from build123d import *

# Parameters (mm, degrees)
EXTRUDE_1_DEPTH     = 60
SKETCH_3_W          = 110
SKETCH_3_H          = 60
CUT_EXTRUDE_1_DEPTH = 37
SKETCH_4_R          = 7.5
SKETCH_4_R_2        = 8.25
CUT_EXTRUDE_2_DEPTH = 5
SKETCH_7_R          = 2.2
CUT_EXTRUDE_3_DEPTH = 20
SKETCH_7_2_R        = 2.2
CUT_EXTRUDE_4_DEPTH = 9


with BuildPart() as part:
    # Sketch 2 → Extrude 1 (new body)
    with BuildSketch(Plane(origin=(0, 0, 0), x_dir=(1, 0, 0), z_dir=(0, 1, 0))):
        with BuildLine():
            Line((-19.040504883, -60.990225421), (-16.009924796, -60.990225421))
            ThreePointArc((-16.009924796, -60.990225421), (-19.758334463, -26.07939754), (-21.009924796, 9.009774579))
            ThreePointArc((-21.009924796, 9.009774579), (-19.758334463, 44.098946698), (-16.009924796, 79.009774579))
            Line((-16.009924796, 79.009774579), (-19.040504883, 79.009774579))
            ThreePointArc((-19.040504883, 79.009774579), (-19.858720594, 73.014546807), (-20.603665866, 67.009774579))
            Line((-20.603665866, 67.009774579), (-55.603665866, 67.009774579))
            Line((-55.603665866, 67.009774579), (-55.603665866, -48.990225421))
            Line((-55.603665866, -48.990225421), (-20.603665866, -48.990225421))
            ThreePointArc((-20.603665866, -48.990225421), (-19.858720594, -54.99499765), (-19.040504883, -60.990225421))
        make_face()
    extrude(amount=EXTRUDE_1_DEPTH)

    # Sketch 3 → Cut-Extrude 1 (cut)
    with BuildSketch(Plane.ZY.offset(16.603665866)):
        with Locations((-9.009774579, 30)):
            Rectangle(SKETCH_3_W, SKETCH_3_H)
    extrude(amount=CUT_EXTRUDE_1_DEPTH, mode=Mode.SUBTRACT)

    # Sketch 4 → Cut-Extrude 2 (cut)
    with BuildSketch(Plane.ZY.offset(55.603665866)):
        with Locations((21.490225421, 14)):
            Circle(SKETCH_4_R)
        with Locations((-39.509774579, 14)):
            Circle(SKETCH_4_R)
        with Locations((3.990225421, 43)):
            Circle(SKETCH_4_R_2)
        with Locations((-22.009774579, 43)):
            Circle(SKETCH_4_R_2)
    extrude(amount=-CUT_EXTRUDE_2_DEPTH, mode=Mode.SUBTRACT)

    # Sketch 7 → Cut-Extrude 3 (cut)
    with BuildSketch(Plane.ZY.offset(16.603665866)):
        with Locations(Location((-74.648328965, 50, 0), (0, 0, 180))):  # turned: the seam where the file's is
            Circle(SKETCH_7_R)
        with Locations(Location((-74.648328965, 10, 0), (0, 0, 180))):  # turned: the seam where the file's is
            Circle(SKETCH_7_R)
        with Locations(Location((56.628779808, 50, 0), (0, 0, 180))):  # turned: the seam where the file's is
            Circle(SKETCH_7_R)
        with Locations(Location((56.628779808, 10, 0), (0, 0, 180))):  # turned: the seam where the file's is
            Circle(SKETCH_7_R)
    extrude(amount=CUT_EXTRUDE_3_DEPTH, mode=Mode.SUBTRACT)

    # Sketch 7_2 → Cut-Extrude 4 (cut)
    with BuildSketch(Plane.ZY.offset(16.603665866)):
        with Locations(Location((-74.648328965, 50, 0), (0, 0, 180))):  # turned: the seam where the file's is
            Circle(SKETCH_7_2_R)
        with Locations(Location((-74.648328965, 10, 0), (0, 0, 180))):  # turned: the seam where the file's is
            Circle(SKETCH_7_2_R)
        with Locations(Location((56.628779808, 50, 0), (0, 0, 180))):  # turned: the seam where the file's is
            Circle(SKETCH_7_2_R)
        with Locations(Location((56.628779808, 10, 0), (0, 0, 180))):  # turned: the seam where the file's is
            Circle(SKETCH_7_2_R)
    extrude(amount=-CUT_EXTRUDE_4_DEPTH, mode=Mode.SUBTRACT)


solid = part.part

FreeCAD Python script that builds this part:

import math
import FreeCAD as App
import Part
import Sketcher

doc = App.newDocument("Part")
body = doc.addObject("PartDesign::Body", "Body")

sketch1 = body.newObject("Sketcher::SketchObject", "Sketch")
sketch1.AttachmentSupport = (doc.getObject("XZ_Plane"), [""])
sketch1.MapMode = "FlatFace"
sketch1.addGeometry(Part.LineSegment(App.Vector(-19.040505, 60.990225, 0), App.Vector(-16.009925, 60.990225, 0)), False)
sketch1.addGeometry(Part.ArcOfCircle(Part.Circle(App.Vector(471.490075, -9.009775, 0), App.Vector(0, 0, 1), 492.5), math.radians(171.828766), math.radians(180)), False)
sketch1.addGeometry(Part.ArcOfCircle(Part.Circle(App.Vector(471.490075, -9.009775, 0), App.Vector(0, 0, 1), 492.5), math.radians(180), math.radians(188.171234)), False)
sketch1.addGeometry(Part.LineSegment(App.Vector(-16.009925, -79.009775, 0), App.Vector(-19.040505, -79.009775, 0)), False)
sketch1.addGeometry(Part.ArcOfCircle(Part.Circle(App.Vector(471.490079, -9.009774, 0), App.Vector(0, 0, 1), 495.500004), math.radians(-173.277919), math.radians(-171.878574)), False)
sketch1.addGeometry(Part.LineSegment(App.Vector(-20.603666, -67.009775, 0), App.Vector(-55.603666, -67.009775, 0)), False)
sketch1.addGeometry(Part.LineSegment(App.Vector(-55.603666, -67.009775, 0), App.Vector(-55.603666, 48.990225, 0)), False)
sketch1.addGeometry(Part.LineSegment(App.Vector(-55.603666, 48.990225, 0), App.Vector(-20.603666, 48.990225, 0)), False)
sketch1.addGeometry(Part.ArcOfCircle(Part.Circle(App.Vector(471.490077, -9.009775, 0), App.Vector(0, 0, 1), 495.500002), math.radians(171.878574), math.radians(173.277919)), False)
sketch1.addConstraint(Sketcher.Constraint("Coincident", 0, 2, 1, 1))
sketch1.addConstraint(Sketcher.Constraint("Tangent", 1, 2, 2, 1))
sketch1.addConstraint(Sketcher.Constraint("Coincident", 2, 2, 3, 1))
sketch1.addConstraint(Sketcher.Constraint("Coincident", 3, 2, 4, 2))
sketch1.addConstraint(Sketcher.Constraint("Coincident", 4, 1, 5, 1))
sketch1.addConstraint(Sketcher.Constraint("Coincident", 5, 2, 6, 1))
sketch1.addConstraint(Sketcher.Constraint("Coincident", 6, 2, 7, 1))
sketch1.addConstraint(Sketcher.Constraint("Coincident", 7, 2, 8, 2))
sketch1.addConstraint(Sketcher.Constraint("Coincident", 8, 1, 0, 1))
sketch1.addConstraint(Sketcher.Constraint("Horizontal", 0))
sketch1.addConstraint(Sketcher.Constraint("Horizontal", 3))
sketch1.addConstraint(Sketcher.Constraint("Horizontal", 5))
sketch1.addConstraint(Sketcher.Constraint("Vertical", 6))
sketch1.addConstraint(Sketcher.Constraint("Horizontal", 7))
sketch1.addConstraint(Sketcher.Constraint("Coincident", 4, 3, 1, 3))
sketch1.addConstraint(Sketcher.Constraint("Coincident", 8, 3, 1, 3))
sketch1.addConstraint(Sketcher.Constraint("Equal", 1, 2))
sketch1.addConstraint(Sketcher.Constraint("Equal", 4, 8))
sketch1.addConstraint(Sketcher.Constraint("Horizontal", 8, 3, 1, 2))
sketch1.addConstraint(Sketcher.Constraint("Vertical", 0, 2, 2, 2))
sketch1.addConstraint(Sketcher.Constraint("Vertical", 4, 1, 7, 2))
sketch1.addConstraint(Sketcher.Constraint("Radius", 1, 492.5))
sketch1.addConstraint(Sketcher.Constraint("Radius", 8, 495.500002))
sketch1.addConstraint(Sketcher.Constraint("DistanceX", 5, 2, 5, 1, 35.0))
sketch1.addConstraint(Sketcher.Constraint("DistanceY", 6, 1, 6, 2, 116.0))
sketch1.addConstraint(Sketcher.Constraint("DistanceY", 1, 3, 0, 2, 70.0))
sketch1.addConstraint(Sketcher.Constraint("DistanceX", -1, 1, 4, 3, 471.490079))
sketch1.addConstraint(Sketcher.Constraint("DistanceY", 1, 3, -1, 1, 9.009775))
pad1 = body.newObject("PartDesign::Pad", "Pad")
pad1.Profile = sketch1
pad1.Length = 60
pad1.Reversed = True

sketch2 = body.newObject("Sketcher::SketchObject", "Sketch001")
sketch2.AttachmentSupport = (doc.getObject("YZ_Plane"), [""])
sketch2.MapMode = "FlatFace"
sketch2.AttachmentOffset = App.Placement(App.Vector(0, 0, -16.603666), App.Rotation())
sketch2.addGeometry(Part.LineSegment(App.Vector(60, -64.009775, 0), App.Vector(0, -64.009775, 0)), False)
sketch2.addGeometry(Part.LineSegment(App.Vector(0, -64.009775, 0), App.Vector(0, 45.990225, 0)), False)
sketch2.addGeometry(Part.LineSegment(App.Vector(0, 45.990225, 0), App.Vector(60, 45.990225, 0)), False)
sketch2.addGeometry(Part.LineSegment(App.Vector(60, 45.990225, 0), App.Vector(60, -64.009775, 0)), False)
sketch2.addConstraint(Sketcher.Constraint("Coincident", 0, 2, 1, 1))
sketch2.addConstraint(Sketcher.Constraint("Coincident", 1, 2, 2, 1))
sketch2.addConstraint(Sketcher.Constraint("Coincident", 2, 2, 3, 1))
sketch2.addConstraint(Sketcher.Constraint("Coincident", 3, 2, 0, 1))
sketch2.addConstraint(Sketcher.Constraint("Horizontal", 0))
sketch2.addConstraint(Sketcher.Constraint("Vertical", 1))
sketch2.addConstraint(Sketcher.Constraint("Horizontal", 2))
sketch2.addConstraint(Sketcher.Constraint("Vertical", 3))
sketch2.addConstraint(Sketcher.Constraint("PointOnObject", 0, 2, -2))
sketch2.addConstraint(Sketcher.Constraint("DistanceX", 0, 2, 0, 1, 60.0))
sketch2.addConstraint(Sketcher.Constraint("DistanceY", 1, 1, 1, 2, 110.0))
sketch2.addConstraint(Sketcher.Constraint("DistanceY", 0, 2, -1, 1, 64.009775))
pocket1 = body.newObject("PartDesign::Pocket", "Pocket")
pocket1.Profile = sketch2
pocket1.Length = 37

sketch3 = body.newObject("Sketcher::SketchObject", "Sketch002")
sketch3.AttachmentSupport = (doc.getObject("YZ_Plane"), [""])
sketch3.MapMode = "FlatFace"
sketch3.AttachmentOffset = App.Placement(App.Vector(0, 0, -55.603666), App.Rotation())
sketch3.addGeometry(Part.Circle(App.Vector(14, 21.490225, 0), App.Vector(0, 0, 1), 7.5), False)
sketch3.addGeometry(Part.Circle(App.Vector(14, -39.509775, 0), App.Vector(0, 0, 1), 7.5), False)
sketch3.addGeometry(Part.Circle(App.Vector(43, 3.990225, 0), App.Vector(0, 0, 1), 8.25), False)
sketch3.addGeometry(Part.Circle(App.Vector(43, -22.009775, 0), App.Vector(0, 0, 1), 8.25), False)
sketch3.addConstraint(Sketcher.Constraint("Equal", 0, 1))
sketch3.addConstraint(Sketcher.Constraint("Equal", 2, 3))
sketch3.addConstraint(Sketcher.Constraint("Vertical", 0, 3, 1, 3))
sketch3.addConstraint(Sketcher.Constraint("Vertical", 2, 3, 3, 3))
sketch3.addConstraint(Sketcher.Constraint("Diameter", 0, 15.0))
sketch3.addConstraint(Sketcher.Constraint("Diameter", 2, 16.5))
sketch3.addConstraint(Sketcher.Constraint("DistanceX", -1, 1, 0, 3, 14.0))
sketch3.addConstraint(Sketcher.Constraint("DistanceX", -1, 1, 2, 3, 43.0))
sketch3.addConstraint(Sketcher.Constraint("DistanceY", 1, 3, 0, 3, 61.0))
sketch3.addConstraint(Sketcher.Constraint("DistanceY", 3, 3, 2, 3, 26.0))
sketch3.addConstraint(Sketcher.Constraint("DistanceY", 2, 3, 0, 3, 17.5))
sketch3.addConstraint(Sketcher.Constraint("DistanceY", -1, 1, 0, 3, 21.490225))
pocket2 = body.newObject("PartDesign::Pocket", "Pocket001")
pocket2.Profile = sketch3
pocket2.Length = 5
pocket2.Reversed = True

sketch4 = body.newObject("Sketcher::SketchObject", "Sketch003")
sketch4.AttachmentSupport = (doc.getObject("YZ_Plane"), [""])
sketch4.MapMode = "FlatFace"
sketch4.AttachmentOffset = App.Placement(App.Vector(0, 0, -16.603666), App.Rotation())
sketch4.addGeometry(Part.Circle(App.Vector(50, -74.648329, 0), App.Vector(0, 0, 1), 2.2), False)
sketch4.addGeometry(Part.Circle(App.Vector(10, -74.648329, 0), App.Vector(0, 0, 1), 2.2), False)
sketch4.addGeometry(Part.Circle(App.Vector(50, 56.62878, 0), App.Vector(0, 0, 1), 2.2), False)
sketch4.addGeometry(Part.Circle(App.Vector(10, 56.62878, 0), App.Vector(0, 0, 1), 2.2), False)
sketch4.addConstraint(Sketcher.Constraint("Equal", 0, 1))
sketch4.addConstraint(Sketcher.Constraint("Equal", 1, 2))
sketch4.addConstraint(Sketcher.Constraint("Equal", 2, 3))
sketch4.addConstraint(Sketcher.Constraint("Horizontal", 0, 3, 1, 3))
sketch4.addConstraint(Sketcher.Constraint("Horizontal", 2, 3, 3, 3))
sketch4.addConstraint(Sketcher.Constraint("Vertical", 0, 3, 2, 3))
sketch4.addConstraint(Sketcher.Constraint("Vertical", 1, 3, 3, 3))
sketch4.addConstraint(Sketcher.Constraint("Diameter", 0, 4.4))
sketch4.addConstraint(Sketcher.Constraint("DistanceX", -1, 1, 0, 3, 50.0))
sketch4.addConstraint(Sketcher.Constraint("DistanceX", -1, 1, 1, 3, 10.0))
sketch4.addConstraint(Sketcher.Constraint("DistanceY", 0, 3, -1, 1, 74.648329))
sketch4.addConstraint(Sketcher.Constraint("DistanceY", -1, 1, 2, 3, 56.62878))
pocket3 = body.newObject("PartDesign::Pocket", "Pocket002")
pocket3.Profile = sketch4
pocket3.Length = 20

sketch5 = body.newObject("Sketcher::SketchObject", "Sketch004")
sketch5.AttachmentSupport = (doc.getObject("YZ_Plane"), [""])
sketch5.MapMode = "FlatFace"
sketch5.AttachmentOffset = App.Placement(App.Vector(0, 0, -16.603666), App.Rotation())
sketch5.addGeometry(Part.Circle(App.Vector(50, -74.648329, 0), App.Vector(0, 0, 1), 2.2), False)
sketch5.addGeometry(Part.Circle(App.Vector(10, -74.648329, 0), App.Vector(0, 0, 1), 2.2), False)
sketch5.addGeometry(Part.Circle(App.Vector(50, 56.62878, 0), App.Vector(0, 0, 1), 2.2), False)
sketch5.addGeometry(Part.Circle(App.Vector(10, 56.62878, 0), App.Vector(0, 0, 1), 2.2), False)
sketch5.addConstraint(Sketcher.Constraint("Equal", 0, 1))
sketch5.addConstraint(Sketcher.Constraint("Equal", 1, 2))
sketch5.addConstraint(Sketcher.Constraint("Equal", 2, 3))
sketch5.addConstraint(Sketcher.Constraint("Horizontal", 0, 3, 1, 3))
sketch5.addConstraint(Sketcher.Constraint("Horizontal", 2, 3, 3, 3))
sketch5.addConstraint(Sketcher.Constraint("Vertical", 0, 3, 2, 3))
sketch5.addConstraint(Sketcher.Constraint("Vertical", 1, 3, 3, 3))
sketch5.addConstraint(Sketcher.Constraint("Diameter", 0, 4.4))
sketch5.addConstraint(Sketcher.Constraint("DistanceX", -1, 1, 0, 3, 50.0))
sketch5.addConstraint(Sketcher.Constraint("DistanceX", -1, 1, 1, 3, 10.0))
sketch5.addConstraint(Sketcher.Constraint("DistanceY", 0, 3, -1, 1, 74.648329))
sketch5.addConstraint(Sketcher.Constraint("DistanceY", -1, 1, 2, 3, 56.62878))
pocket4 = body.newObject("PartDesign::Pocket", "Pocket003")
pocket4.Profile = sketch5
pocket4.Length = 9
pocket4.Reversed = True

doc.recompute()
